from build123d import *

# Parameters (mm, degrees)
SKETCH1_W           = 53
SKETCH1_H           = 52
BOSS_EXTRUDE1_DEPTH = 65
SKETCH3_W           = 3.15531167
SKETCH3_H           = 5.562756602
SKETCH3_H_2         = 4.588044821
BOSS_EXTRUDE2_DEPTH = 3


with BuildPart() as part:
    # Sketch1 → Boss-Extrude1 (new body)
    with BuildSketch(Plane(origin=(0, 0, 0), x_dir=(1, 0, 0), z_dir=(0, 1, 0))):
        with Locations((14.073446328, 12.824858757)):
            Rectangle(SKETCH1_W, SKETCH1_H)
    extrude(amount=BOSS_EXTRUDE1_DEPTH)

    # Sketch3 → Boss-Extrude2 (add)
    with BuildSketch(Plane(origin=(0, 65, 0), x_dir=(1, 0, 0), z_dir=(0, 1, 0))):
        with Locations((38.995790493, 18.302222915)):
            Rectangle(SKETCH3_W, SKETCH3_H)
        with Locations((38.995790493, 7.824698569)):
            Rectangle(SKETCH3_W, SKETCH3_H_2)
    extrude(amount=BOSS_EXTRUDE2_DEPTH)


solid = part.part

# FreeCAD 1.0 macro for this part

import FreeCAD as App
import Part
import Sketcher

V = App.Vector
Q = App.Units.Quantity

doc = App.newDocument("Part")
body = doc.addObject("PartDesign::Body", "Body")

sketch1 = body.newObject("Sketcher::SketchObject", "Sketch")
sketch1.AttachmentSupport = (doc.getObject("XZ_Plane"), [""])
sketch1.MapMode = "FlatFace"
sketch1.addGeometry([
    Part.LineSegment(V(-12, -39, 0), V(-12, 13, 0)),
    Part.LineSegment(V(-12, 13, 0), V(41, 13, 0)),
    Part.LineSegment(V(41, 13, 0), V(41, -39, 0)),
    Part.LineSegment(V(41, -39, 0), V(-12, -39, 0)),
], False)
sketch1.addConstraint([
    Sketcher.Constraint("Coincident", 0, 2, 1, 1),
    Sketcher.Constraint("Coincident", 1, 2, 2, 1),
    Sketcher.Constraint("Coincident", 2, 2, 3, 1),
    Sketcher.Constraint("Coincident", 3, 2, 0, 1),
    Sketcher.Constraint("Vertical", 0),
    Sketcher.Constraint("Horizontal", 1),
    Sketcher.Constraint("Vertical", 2),
    Sketcher.Constraint("Horizontal", 3),
    Sketcher.Constraint("DistanceX", 1, 1, 1, 2, Q("53 mm")),
    Sketcher.Constraint("DistanceY", 0, 1, 0, 2, Q("52 mm")),
    Sketcher.Constraint("DistanceY", -1, 1, 0, 2, Q("13.175141 mm")),
    Sketcher.Constraint("DistanceX", 0, 2, -1, 1, Q("12.426554 mm")),
])
pad1 = body.newObject("PartDesign::Pad", "Pad")
pad1.Profile = sketch1
pad1.Length = 65
pad1.Reversed = True

sketch2 = body.newObject("Sketcher::SketchObject", "Sketch001")
sketch2.AttachmentSupport = (doc.getObject("XZ_Plane"), [""])
sketch2.MapMode = "FlatFace"
sketch2.AttachmentOffset = App.Placement(V(0, 0, -65), App.Rotation())
sketch2.addGeometry([
    Part.LineSegment(V(37.4, -21.1, 0), V(37.4, -15.5, 0)),
    Part.LineSegment(V(37.4, -15.5, 0), V(40.6, -15.5, 0)),
    Part.LineSegment(V(40.6, -15.5, 0), V(40.6, -21.1, 0)),
    Part.LineSegment(V(40.6, -21.1, 0), V(37.4, -21.1, 0)),
    Part.LineSegment(V(37.4, -10.1, 0), V(37.4, -5.5, 0)),
    Part.LineSegment(V(37.4, -5.5, 0), V(40.6, -5.5, 0)),
    Part.LineSegment(V(40.6, -5.5, 0), V(40.6, -10.1, 0)),
    Part.LineSegment(V(40.6, -10.1, 0), V(37.4, -10.1, 0)),
], False)
sketch2.addConstraint([
    Sketcher.Constraint("Coincident", 0, 2, 1, 1),
    Sketcher.Constraint("Coincident", 1, 2, 2, 1),
    Sketcher.Constraint("Coincident", 2, 2, 3, 1),
    Sketcher.Constraint("Coincident", 3, 2, 0, 1),
    Sketcher.Constraint("Coincident", 4, 2, 5, 1),
    Sketcher.Constraint("Coincident", 5, 2, 6, 1),
    Sketcher.Constraint("Coincident", 6, 2, 7, 1),
    Sketcher.Constraint("Coincident", 7, 2, 4, 1),
    Sketcher.Constraint("Vertical", 0),
    Sketcher.Constraint("Horizontal", 1),
    Sketcher.Constraint("Vertical", 2),
    Sketcher.Constraint("Horizontal", 3),
    Sketcher.Constraint("Vertical", 4),
    Sketcher.Constraint("Horizontal", 5),
    Sketcher.Constraint("Vertical", 6),
    Sketcher.Constraint("Horizontal", 7),
    Sketcher.Constraint("Vertical", 3, 2, 4, 2),
    Sketcher.Constraint("Vertical", 2, 2, 5, 2),
    Sketcher.Constraint("DistanceX", 1, 1, 1, 2, Q("3.155312 mm")),
    Sketcher.Constraint("DistanceY", 2, 2, -1, 1, Q("21.083601 mm")),
    Sketcher.Constraint("DistanceY", 0, 1, 0, 2, Q("5.562757 mm")),
    Sketcher.Constraint("DistanceY", 4, 1, 4, 2, Q("4.588045 mm")),
    Sketcher.Constraint("DistanceY", 6, 2, -1, 1, Q("10.118721 mm")),
    Sketcher.Constraint("DistanceX", -1, 1, 0, 2, Q("37.418135 mm")),
])
pad2 = body.newObject("PartDesign::Pad", "Pad001")
pad2.Profile = sketch2
pad2.Length = 3
pad2.Reversed = True

doc.recompute()
